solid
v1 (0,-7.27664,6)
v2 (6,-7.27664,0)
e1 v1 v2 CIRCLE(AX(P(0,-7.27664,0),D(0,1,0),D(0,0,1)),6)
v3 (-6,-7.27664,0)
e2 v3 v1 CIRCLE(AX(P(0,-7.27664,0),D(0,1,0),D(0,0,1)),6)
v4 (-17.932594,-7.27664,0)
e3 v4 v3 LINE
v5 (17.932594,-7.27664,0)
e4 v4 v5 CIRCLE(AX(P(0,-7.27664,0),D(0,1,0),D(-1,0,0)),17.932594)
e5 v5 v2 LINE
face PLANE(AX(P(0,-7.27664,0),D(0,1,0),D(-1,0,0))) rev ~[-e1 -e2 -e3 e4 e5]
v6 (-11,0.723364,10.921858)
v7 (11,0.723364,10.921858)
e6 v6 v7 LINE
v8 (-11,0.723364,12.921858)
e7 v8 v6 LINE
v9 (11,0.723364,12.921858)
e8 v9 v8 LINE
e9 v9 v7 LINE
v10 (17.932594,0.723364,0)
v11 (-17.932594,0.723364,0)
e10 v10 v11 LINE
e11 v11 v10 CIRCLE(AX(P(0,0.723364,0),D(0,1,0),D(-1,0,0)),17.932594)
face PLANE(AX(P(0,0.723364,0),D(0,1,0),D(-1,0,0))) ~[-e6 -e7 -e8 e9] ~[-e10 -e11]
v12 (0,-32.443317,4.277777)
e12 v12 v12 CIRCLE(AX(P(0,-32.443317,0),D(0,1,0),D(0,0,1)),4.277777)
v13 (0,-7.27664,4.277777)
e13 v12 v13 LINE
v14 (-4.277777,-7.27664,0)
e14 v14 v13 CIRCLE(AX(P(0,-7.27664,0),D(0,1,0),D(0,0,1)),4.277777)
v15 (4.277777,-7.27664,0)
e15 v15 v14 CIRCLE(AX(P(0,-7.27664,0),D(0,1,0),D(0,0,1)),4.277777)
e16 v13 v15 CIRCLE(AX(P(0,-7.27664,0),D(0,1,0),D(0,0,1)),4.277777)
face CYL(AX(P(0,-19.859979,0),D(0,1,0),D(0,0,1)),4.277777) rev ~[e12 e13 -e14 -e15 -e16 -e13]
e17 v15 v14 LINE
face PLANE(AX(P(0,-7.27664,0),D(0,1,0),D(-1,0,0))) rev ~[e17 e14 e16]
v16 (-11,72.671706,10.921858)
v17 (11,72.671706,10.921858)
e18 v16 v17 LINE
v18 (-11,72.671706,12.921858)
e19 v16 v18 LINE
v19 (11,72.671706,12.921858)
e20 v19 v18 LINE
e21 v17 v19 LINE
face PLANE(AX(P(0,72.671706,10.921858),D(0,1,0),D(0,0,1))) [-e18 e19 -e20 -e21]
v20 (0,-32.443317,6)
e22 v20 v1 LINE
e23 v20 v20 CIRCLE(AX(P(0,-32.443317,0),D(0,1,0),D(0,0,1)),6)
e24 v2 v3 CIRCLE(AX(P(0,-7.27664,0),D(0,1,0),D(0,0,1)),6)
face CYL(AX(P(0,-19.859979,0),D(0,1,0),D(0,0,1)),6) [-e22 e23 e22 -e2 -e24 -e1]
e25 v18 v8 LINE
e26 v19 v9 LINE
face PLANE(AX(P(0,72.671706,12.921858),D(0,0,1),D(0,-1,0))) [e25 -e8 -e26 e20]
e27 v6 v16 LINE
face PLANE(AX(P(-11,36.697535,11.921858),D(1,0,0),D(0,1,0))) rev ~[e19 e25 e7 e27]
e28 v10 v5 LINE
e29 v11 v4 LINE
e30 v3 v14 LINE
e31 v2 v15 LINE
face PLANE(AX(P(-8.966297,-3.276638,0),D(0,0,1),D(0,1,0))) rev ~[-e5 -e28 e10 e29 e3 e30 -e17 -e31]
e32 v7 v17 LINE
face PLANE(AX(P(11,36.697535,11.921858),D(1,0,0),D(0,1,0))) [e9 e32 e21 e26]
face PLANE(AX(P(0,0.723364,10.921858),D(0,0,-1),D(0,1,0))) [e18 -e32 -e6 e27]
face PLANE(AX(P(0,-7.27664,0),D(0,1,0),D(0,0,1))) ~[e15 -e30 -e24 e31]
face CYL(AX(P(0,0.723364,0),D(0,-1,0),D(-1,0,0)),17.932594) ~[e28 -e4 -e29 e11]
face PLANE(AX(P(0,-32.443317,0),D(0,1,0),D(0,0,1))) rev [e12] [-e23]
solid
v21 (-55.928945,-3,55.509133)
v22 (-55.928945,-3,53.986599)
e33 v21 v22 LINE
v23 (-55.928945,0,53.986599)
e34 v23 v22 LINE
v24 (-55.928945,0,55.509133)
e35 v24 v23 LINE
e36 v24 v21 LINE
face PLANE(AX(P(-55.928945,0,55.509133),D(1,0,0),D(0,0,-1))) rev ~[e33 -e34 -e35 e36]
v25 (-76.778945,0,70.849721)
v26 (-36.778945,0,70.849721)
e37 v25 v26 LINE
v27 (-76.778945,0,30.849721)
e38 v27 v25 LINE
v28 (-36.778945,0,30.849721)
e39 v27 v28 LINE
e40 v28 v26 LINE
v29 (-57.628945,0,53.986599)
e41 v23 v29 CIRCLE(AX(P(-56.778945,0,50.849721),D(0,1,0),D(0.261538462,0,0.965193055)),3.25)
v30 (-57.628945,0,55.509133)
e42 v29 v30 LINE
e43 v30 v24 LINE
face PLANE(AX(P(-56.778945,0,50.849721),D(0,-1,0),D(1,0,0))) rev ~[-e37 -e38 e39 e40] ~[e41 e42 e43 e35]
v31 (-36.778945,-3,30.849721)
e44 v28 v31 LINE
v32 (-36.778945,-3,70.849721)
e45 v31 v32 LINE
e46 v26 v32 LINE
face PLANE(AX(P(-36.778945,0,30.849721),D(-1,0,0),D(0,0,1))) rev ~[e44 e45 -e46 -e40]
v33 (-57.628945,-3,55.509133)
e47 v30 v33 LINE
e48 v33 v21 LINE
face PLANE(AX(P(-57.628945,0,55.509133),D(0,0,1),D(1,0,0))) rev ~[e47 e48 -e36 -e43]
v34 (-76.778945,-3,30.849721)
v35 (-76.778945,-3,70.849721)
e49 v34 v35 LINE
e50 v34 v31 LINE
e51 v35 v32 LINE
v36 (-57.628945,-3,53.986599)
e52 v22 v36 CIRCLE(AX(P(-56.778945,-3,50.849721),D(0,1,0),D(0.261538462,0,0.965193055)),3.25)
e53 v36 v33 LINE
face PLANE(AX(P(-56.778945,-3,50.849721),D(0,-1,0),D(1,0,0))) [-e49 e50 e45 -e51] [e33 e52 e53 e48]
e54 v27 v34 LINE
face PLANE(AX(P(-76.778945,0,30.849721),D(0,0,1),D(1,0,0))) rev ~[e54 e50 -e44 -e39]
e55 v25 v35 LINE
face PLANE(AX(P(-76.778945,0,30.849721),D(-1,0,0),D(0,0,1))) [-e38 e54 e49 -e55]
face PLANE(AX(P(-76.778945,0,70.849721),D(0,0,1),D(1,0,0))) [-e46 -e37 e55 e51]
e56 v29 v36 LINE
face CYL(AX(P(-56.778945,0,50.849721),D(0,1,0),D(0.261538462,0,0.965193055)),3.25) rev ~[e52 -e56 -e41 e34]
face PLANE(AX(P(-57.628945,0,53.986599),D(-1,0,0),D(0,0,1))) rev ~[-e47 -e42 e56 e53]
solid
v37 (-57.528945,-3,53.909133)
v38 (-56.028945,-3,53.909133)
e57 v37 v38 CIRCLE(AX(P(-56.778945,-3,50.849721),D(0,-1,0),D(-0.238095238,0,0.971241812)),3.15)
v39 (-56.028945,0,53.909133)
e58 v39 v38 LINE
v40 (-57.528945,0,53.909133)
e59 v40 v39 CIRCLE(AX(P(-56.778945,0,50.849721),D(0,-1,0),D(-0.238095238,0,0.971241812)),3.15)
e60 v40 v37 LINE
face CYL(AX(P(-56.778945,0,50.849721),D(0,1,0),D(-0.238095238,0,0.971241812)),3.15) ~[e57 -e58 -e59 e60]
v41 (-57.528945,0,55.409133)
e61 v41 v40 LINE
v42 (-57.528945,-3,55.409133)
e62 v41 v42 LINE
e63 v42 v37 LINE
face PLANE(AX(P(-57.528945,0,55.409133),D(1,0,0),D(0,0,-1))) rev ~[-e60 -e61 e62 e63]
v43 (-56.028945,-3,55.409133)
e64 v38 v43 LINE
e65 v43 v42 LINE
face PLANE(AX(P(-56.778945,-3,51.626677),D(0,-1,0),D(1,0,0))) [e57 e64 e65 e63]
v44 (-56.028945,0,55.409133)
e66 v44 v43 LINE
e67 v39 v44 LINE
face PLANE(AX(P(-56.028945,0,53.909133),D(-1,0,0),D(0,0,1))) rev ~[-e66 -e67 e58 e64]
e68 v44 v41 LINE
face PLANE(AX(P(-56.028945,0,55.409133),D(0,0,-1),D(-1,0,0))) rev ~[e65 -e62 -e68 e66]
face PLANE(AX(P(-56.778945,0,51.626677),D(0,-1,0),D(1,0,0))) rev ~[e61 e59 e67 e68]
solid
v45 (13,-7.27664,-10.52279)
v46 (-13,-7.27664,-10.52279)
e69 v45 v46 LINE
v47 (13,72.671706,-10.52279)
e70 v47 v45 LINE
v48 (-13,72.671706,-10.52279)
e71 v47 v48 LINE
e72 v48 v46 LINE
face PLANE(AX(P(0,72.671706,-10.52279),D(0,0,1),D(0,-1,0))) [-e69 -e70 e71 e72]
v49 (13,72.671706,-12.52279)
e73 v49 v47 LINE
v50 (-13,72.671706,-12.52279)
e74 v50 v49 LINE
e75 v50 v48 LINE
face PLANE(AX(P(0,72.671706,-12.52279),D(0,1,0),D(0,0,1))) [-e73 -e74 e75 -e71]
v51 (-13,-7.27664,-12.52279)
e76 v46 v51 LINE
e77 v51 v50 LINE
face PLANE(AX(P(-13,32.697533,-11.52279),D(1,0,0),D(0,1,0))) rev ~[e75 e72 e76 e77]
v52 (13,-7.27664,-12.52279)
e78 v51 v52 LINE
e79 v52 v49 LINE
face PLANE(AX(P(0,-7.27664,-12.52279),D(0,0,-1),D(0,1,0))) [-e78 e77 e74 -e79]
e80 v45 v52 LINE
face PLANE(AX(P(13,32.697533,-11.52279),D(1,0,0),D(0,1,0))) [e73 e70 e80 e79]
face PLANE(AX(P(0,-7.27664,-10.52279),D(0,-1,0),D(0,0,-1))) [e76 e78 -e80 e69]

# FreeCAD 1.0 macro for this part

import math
import FreeCAD as App
import Part
import Sketcher

V = App.Vector


def add_polygon(sketch, points):
    """Adds a closed chain of lines whose ends are joined by coincident constraints."""
    first, n = sketch.GeometryCount, len(points)
    for a, b in zip(points, points[1:] + points[:1]):
        sketch.addGeometry(Part.LineSegment(App.Vector(*a, 0), App.Vector(*b, 0)), False)
    for i in range(n):
        sketch.addConstraint(Sketcher.Constraint("Coincident", first + i, 2, first + (i + 1) % n, 1))

doc = App.newDocument("Part")
params = doc.addObject("Spreadsheet::Sheet", "Params")
for row, (alias, value) in enumerate([
    ("revolution_angle", "360 deg"),
    ("revolution2_angle", "180 deg"),
    ("sketch3_height", "2 mm"),
    ("pad1_length", "22 mm"),
    ("sketch4_height", "2 mm"),
    ("pad2_length", "26 mm"),
    ("sketch5_width", "40 mm"),
    ("sketch5_radius", "3.25 mm"),
    ("sketch5_width2", "1.7 mm"),
    ("pad3_length", "3 mm"),
    ("sketch6_radius", "3.15 mm"),
    ("sketch6_width", "1.5 mm"),
    ("pad4_length", "3 mm"),
], start=1):
    params.set(f"A{row}", alias)
    params.set(f"B{row}", "=" + value)
    params.setAlias(f"B{row}", alias)

body = doc.addObject("PartDesign::Body", "Body")

# Sketch on YZ plane
sketch1 = body.newObject("Sketcher::SketchObject", "Sketch")
sketch1.AttachmentSupport = (doc.getObject("YZ_Plane"), [""])
sketch1.MapMode = "FlatFace"
add_polygon(sketch1, [(-32.4, 6), (-32.4, 4.3), (-7.3, 4.3), (-7.3, 6)])  # lines 0-3
sketch1.addConstraint(Sketcher.Constraint("Vertical", 0))
sketch1.addConstraint(Sketcher.Constraint("Horizontal", 1))
sketch1.addConstraint(Sketcher.Constraint("Vertical", 2))
sketch1.addConstraint(Sketcher.Constraint("Horizontal", 3))
sketch1.addConstraint(Sketcher.Constraint("DistanceY", -1, 1, 2, 2, 6.0))
sketch1.addConstraint(Sketcher.Constraint("DistanceX", 1, 1, 1, 2, 25.166678))
sketch1.addConstraint(Sketcher.Constraint("DistanceY", 0, 2, 0, 1, 1.722223))
sketch1.addConstraint(Sketcher.Constraint("DistanceX", 1, 2, -1, 1, 7.27664))
revolution = body.newObject("PartDesign::Revolution", "Revolution")
revolution.Profile = sketch1
revolution.ReferenceAxis = (sketch1, ["H_Axis"])
revolution.setExpression("Angle", "Params.revolution_angle")

# Sketch on XY plane
sketch2 = body.newObject("Sketcher::SketchObject", "Sketch001")
sketch2.AttachmentSupport = (doc.getObject("XY_Plane"), [""])
sketch2.MapMode = "FlatFace"
add_polygon(sketch2, [(0, -7), (0, 1), (-18, 1), (-18, -7)])  # lines 0-3
sketch2.addConstraint(Sketcher.Constraint("Vertical", 0))
sketch2.addConstraint(Sketcher.Constraint("Horizontal", 1))
sketch2.addConstraint(Sketcher.Constraint("Vertical", 2))
sketch2.addConstraint(Sketcher.Constraint("Horizontal", 3))
sketch2.addConstraint(Sketcher.Constraint("PointOnObject", 0, 2, -2))
sketch2.addConstraint(Sketcher.Constraint("DistanceX", 1, 2, 1, 1, 17.932594))
sketch2.addConstraint(Sketcher.Constraint("DistanceY", 0, 1, 0, 2, 8.000004))
sketch2.addConstraint(Sketcher.Constraint("DistanceY", 2, 2, -1, 1, 7.27664))
revolution2 = body.newObject("PartDesign::Revolution", "Revolution001")
revolution2.Profile = sketch2
revolution2.ReferenceAxis = (sketch2, ["V_Axis"])
revolution2.setExpression("Angle", "Params.revolution2_angle")

# Sketch on YZ plane
sketch3 = body.newObject("Sketcher::SketchObject", "Sketch002")
sketch3.AttachmentSupport = (doc.getObject("YZ_Plane"), [""])
sketch3.MapMode = "FlatFace"
add_polygon(sketch3, [(0.7, 12.9), (0.7, 10.9), (72.7, 10.9), (72.7, 12.9)])  # lines 0-3
sketch3.addConstraint(Sketcher.Constraint("Vertical", 0))
sketch3.addConstraint(Sketcher.Constraint("Horizontal", 1))
sketch3.addConstraint(Sketcher.Constraint("Vertical", 2))
sketch3.addConstraint(Sketcher.Constraint("Horizontal", 3))
sketch3.addConstraint(Sketcher.Constraint("DistanceY", 0, 2, 0, 1, 2.0))
sketch3.addConstraint(Sketcher.Constraint("DistanceX", 1, 1, 1, 2, 71.948342))
sketch3.addConstraint(Sketcher.Constraint("DistanceY", -1, 1, 0, 2, 10.921858))
sketch3.addConstraint(Sketcher.Constraint("DistanceX", -1, 1, 0, 2, 0.723364))
sketch3.setExpression("Constraints[8]", "Params.sketch3_height")
pad1 = body.newObject("PartDesign::Pad", "Pad")
pad1.Profile = sketch3
pad1.setExpression("Length", "Params.pad1_length")
pad1.Midplane = True
body2 = doc.addObject("PartDesign::Body", "Body001")

# Sketch on YZ plane
sketch4 = body2.newObject("Sketcher::SketchObject", "Sketch003")
sketch4.AttachmentSupport = (doc.getObject("YZ_Plane001"), [""])
sketch4.MapMode = "FlatFace"
add_polygon(sketch4, [(-7.3, -10.5), (-7.3, -12.5), (72.7, -12.5), (72.7, -10.5)])  # lines 0-3
sketch4.addConstraint(Sketcher.Constraint("Vertical", 0))
sketch4.addConstraint(Sketcher.Constraint("Horizontal", 1))
sketch4.addConstraint(Sketcher.Constraint("Vertical", 2))
sketch4.addConstraint(Sketcher.Constraint("Horizontal", 3))
sketch4.addConstraint(Sketcher.Constraint("DistanceY", 0, 2, 0, 1, 2.0))
sketch4.addConstraint(Sketcher.Constraint("DistanceX", 1, 1, 1, 2, 79.948346))
sketch4.addConstraint(Sketcher.Constraint("DistanceX", 0, 2, -1, 1, 7.27664))
sketch4.addConstraint(Sketcher.Constraint("DistanceY", 0, 2, -1, 1, 12.52279))
sketch4.setExpression("Constraints[8]", "Params.sketch4_height")
pad2 = body2.newObject("PartDesign::Pad", "Pad001")
pad2.Profile = sketch4
pad2.setExpression("Length", "Params.pad2_length")
pad2.Midplane = True
body3 = doc.addObject("PartDesign::Body", "Body002")

# Sketch on XZ plane
sketch5 = body3.newObject("Sketcher::SketchObject", "Sketch004")
sketch5.AttachmentSupport = (doc.getObject("XZ_Plane002"), [""])
sketch5.MapMode = "FlatFace"
add_polygon(sketch5, [(-76.8, 70.8), (-76.8, 30.8), (-36.8, 30.8), (-36.8, 70.8)])  # lines 0-3
sketch5.addGeometry(Part.LineSegment(V(-55.9, 55.5, 0), V(-55.9, 54, 0)), False)  # 4
sketch5.addGeometry(Part.ArcOfCircle(Part.Circle(V(-56.8, 50.8, 0), V(0, 0, 1), 3.2), math.radians(105), math.radians(435)), False)  # 5
sketch5.addGeometry(Part.LineSegment(V(-57.6, 54, 0), V(-57.6, 55.5, 0)), False)  # 6
sketch5.addGeometry(Part.LineSegment(V(-57.6, 55.5, 0), V(-55.9, 55.5, 0)), False)  # 7
sketch5.addConstraint(Sketcher.Constraint("Coincident", 4, 2, 5, 2))
sketch5.addConstraint(Sketcher.Constraint("Coincident", 5, 1, 6, 1))
sketch5.addConstraint(Sketcher.Constraint("Coincident", 6, 2, 7, 1))
sketch5.addConstraint(Sketcher.Constraint("Coincident", 7, 2, 4, 1))
sketch5.addConstraint(Sketcher.Constraint("Vertical", 0))
sketch5.addConstraint(Sketcher.Constraint("Horizontal", 1))
sketch5.addConstraint(Sketcher.Constraint("Vertical", 2))
sketch5.addConstraint(Sketcher.Constraint("Horizontal", 3))
sketch5.addConstraint(Sketcher.Constraint("Vertical", 4))
sketch5.addConstraint(Sketcher.Constraint("Vertical", 6))
sketch5.addConstraint(Sketcher.Constraint("Horizontal", 7))
sketch5.addConstraint(Sketcher.Constraint("Horizontal", 4, 2, 5, 1))
sketch5.addConstraint(Sketcher.Constraint("Equal", 3, 0))
sketch5.addConstraint(Sketcher.Constraint("DistanceX", 1, 1, 1, 2, 40.0))
sketch5.addConstraint(Sketcher.Constraint("Radius", 5, 3.25))
sketch5.addConstraint(Sketcher.Constraint("DistanceX", 7, 1, 7, 2, 1.7))
sketch5.addConstraint(Sketcher.Constraint("DistanceX", 0, 2, 5, 3, 20.0))
sketch5.addConstraint(Sketcher.Constraint("DistanceY", 0, 2, 5, 3, 20.0))
sketch5.addConstraint(Sketcher.Constraint("DistanceY", -1, 1, 4, 2, 53.986599))
sketch5.addConstraint(Sketcher.Constraint("DistanceY", 4, 2, 4, 1, 1.522534))
sketch5.addConstraint(Sketcher.Constraint("DistanceX", 5, 3, -1, 1, 56.778945))
sketch5.setExpression("Constraints[17]", "Params.sketch5_width")
sketch5.setExpression("Constraints[18]", "Params.sketch5_radius")
sketch5.setExpression("Constraints[19]", "Params.sketch5_width2")
pad3 = body3.newObject("PartDesign::Pad", "Pad002")
pad3.Profile = sketch5
pad3.setExpression("Length", "Params.pad3_length")
body4 = doc.addObject("PartDesign::Body", "Body003")

# Sketch on XZ plane
sketch6 = body4.newObject("Sketcher::SketchObject", "Sketch005")
sketch6.AttachmentSupport = (doc.getObject("XZ_Plane003"), [""])
sketch6.MapMode = "FlatFace"
sketch6.addGeometry(Part.LineSegment(V(-57.5, 55.4, 0), V(-57.5, 53.9, 0)), False)
sketch6.addGeometry(Part.ArcOfCircle(Part.Circle(V(-56.8, 50.8, 0), V(0, 0, 1), 3.1), math.radians(104), math.radians(436)), False)
sketch6.addGeometry(Part.LineSegment(V(-56, 53.9, 0), V(-56, 55.4, 0)), False)
sketch6.addGeometry(Part.LineSegment(V(-56, 55.4, 0), V(-57.5, 55.4, 0)), False)
sketch6.addConstraint(Sketcher.Constraint("Coincident", 0, 2, 1, 1))
sketch6.addConstraint(Sketcher.Constraint("Coincident", 1, 2, 2, 1))
sketch6.addConstraint(Sketcher.Constraint("Coincident", 2, 2, 3, 1))
sketch6.addConstraint(Sketcher.Constraint("Coincident", 3, 2, 0, 1))
sketch6.addConstraint(Sketcher.Constraint("Vertical", 0))
sketch6.addConstraint(Sketcher.Constraint("Vertical", 2))
sketch6.addConstraint(Sketcher.Constraint("Horizontal", 3))
sketch6.addConstraint(Sketcher.Constraint("Horizontal", 0, 2, 1, 2))
sketch6.addConstraint(Sketcher.Constraint("Equal", 3, 0))
sketch6.addConstraint(Sketcher.Constraint("Radius", 1, 3.15))
sketch6.addConstraint(Sketcher.Constraint("DistanceX", 3, 2, 3, 1, 1.5))
sketch6.addConstraint(Sketcher.Constraint("DistanceY", -1, 1, 1, 3, 50.849721))
sketch6.addConstraint(Sketcher.Constraint("DistanceX", 1, 3, -1, 1, 56.778945))
sketch6.setExpression("Constraints[9]", "Params.sketch6_radius")
sketch6.setExpression("Constraints[10]", "Params.sketch6_width")
pad4 = body4.newObject("PartDesign::Pad", "Pad003")
pad4.Profile = sketch6
pad4.setExpression("Length", "Params.pad4_length")

doc.recompute()
